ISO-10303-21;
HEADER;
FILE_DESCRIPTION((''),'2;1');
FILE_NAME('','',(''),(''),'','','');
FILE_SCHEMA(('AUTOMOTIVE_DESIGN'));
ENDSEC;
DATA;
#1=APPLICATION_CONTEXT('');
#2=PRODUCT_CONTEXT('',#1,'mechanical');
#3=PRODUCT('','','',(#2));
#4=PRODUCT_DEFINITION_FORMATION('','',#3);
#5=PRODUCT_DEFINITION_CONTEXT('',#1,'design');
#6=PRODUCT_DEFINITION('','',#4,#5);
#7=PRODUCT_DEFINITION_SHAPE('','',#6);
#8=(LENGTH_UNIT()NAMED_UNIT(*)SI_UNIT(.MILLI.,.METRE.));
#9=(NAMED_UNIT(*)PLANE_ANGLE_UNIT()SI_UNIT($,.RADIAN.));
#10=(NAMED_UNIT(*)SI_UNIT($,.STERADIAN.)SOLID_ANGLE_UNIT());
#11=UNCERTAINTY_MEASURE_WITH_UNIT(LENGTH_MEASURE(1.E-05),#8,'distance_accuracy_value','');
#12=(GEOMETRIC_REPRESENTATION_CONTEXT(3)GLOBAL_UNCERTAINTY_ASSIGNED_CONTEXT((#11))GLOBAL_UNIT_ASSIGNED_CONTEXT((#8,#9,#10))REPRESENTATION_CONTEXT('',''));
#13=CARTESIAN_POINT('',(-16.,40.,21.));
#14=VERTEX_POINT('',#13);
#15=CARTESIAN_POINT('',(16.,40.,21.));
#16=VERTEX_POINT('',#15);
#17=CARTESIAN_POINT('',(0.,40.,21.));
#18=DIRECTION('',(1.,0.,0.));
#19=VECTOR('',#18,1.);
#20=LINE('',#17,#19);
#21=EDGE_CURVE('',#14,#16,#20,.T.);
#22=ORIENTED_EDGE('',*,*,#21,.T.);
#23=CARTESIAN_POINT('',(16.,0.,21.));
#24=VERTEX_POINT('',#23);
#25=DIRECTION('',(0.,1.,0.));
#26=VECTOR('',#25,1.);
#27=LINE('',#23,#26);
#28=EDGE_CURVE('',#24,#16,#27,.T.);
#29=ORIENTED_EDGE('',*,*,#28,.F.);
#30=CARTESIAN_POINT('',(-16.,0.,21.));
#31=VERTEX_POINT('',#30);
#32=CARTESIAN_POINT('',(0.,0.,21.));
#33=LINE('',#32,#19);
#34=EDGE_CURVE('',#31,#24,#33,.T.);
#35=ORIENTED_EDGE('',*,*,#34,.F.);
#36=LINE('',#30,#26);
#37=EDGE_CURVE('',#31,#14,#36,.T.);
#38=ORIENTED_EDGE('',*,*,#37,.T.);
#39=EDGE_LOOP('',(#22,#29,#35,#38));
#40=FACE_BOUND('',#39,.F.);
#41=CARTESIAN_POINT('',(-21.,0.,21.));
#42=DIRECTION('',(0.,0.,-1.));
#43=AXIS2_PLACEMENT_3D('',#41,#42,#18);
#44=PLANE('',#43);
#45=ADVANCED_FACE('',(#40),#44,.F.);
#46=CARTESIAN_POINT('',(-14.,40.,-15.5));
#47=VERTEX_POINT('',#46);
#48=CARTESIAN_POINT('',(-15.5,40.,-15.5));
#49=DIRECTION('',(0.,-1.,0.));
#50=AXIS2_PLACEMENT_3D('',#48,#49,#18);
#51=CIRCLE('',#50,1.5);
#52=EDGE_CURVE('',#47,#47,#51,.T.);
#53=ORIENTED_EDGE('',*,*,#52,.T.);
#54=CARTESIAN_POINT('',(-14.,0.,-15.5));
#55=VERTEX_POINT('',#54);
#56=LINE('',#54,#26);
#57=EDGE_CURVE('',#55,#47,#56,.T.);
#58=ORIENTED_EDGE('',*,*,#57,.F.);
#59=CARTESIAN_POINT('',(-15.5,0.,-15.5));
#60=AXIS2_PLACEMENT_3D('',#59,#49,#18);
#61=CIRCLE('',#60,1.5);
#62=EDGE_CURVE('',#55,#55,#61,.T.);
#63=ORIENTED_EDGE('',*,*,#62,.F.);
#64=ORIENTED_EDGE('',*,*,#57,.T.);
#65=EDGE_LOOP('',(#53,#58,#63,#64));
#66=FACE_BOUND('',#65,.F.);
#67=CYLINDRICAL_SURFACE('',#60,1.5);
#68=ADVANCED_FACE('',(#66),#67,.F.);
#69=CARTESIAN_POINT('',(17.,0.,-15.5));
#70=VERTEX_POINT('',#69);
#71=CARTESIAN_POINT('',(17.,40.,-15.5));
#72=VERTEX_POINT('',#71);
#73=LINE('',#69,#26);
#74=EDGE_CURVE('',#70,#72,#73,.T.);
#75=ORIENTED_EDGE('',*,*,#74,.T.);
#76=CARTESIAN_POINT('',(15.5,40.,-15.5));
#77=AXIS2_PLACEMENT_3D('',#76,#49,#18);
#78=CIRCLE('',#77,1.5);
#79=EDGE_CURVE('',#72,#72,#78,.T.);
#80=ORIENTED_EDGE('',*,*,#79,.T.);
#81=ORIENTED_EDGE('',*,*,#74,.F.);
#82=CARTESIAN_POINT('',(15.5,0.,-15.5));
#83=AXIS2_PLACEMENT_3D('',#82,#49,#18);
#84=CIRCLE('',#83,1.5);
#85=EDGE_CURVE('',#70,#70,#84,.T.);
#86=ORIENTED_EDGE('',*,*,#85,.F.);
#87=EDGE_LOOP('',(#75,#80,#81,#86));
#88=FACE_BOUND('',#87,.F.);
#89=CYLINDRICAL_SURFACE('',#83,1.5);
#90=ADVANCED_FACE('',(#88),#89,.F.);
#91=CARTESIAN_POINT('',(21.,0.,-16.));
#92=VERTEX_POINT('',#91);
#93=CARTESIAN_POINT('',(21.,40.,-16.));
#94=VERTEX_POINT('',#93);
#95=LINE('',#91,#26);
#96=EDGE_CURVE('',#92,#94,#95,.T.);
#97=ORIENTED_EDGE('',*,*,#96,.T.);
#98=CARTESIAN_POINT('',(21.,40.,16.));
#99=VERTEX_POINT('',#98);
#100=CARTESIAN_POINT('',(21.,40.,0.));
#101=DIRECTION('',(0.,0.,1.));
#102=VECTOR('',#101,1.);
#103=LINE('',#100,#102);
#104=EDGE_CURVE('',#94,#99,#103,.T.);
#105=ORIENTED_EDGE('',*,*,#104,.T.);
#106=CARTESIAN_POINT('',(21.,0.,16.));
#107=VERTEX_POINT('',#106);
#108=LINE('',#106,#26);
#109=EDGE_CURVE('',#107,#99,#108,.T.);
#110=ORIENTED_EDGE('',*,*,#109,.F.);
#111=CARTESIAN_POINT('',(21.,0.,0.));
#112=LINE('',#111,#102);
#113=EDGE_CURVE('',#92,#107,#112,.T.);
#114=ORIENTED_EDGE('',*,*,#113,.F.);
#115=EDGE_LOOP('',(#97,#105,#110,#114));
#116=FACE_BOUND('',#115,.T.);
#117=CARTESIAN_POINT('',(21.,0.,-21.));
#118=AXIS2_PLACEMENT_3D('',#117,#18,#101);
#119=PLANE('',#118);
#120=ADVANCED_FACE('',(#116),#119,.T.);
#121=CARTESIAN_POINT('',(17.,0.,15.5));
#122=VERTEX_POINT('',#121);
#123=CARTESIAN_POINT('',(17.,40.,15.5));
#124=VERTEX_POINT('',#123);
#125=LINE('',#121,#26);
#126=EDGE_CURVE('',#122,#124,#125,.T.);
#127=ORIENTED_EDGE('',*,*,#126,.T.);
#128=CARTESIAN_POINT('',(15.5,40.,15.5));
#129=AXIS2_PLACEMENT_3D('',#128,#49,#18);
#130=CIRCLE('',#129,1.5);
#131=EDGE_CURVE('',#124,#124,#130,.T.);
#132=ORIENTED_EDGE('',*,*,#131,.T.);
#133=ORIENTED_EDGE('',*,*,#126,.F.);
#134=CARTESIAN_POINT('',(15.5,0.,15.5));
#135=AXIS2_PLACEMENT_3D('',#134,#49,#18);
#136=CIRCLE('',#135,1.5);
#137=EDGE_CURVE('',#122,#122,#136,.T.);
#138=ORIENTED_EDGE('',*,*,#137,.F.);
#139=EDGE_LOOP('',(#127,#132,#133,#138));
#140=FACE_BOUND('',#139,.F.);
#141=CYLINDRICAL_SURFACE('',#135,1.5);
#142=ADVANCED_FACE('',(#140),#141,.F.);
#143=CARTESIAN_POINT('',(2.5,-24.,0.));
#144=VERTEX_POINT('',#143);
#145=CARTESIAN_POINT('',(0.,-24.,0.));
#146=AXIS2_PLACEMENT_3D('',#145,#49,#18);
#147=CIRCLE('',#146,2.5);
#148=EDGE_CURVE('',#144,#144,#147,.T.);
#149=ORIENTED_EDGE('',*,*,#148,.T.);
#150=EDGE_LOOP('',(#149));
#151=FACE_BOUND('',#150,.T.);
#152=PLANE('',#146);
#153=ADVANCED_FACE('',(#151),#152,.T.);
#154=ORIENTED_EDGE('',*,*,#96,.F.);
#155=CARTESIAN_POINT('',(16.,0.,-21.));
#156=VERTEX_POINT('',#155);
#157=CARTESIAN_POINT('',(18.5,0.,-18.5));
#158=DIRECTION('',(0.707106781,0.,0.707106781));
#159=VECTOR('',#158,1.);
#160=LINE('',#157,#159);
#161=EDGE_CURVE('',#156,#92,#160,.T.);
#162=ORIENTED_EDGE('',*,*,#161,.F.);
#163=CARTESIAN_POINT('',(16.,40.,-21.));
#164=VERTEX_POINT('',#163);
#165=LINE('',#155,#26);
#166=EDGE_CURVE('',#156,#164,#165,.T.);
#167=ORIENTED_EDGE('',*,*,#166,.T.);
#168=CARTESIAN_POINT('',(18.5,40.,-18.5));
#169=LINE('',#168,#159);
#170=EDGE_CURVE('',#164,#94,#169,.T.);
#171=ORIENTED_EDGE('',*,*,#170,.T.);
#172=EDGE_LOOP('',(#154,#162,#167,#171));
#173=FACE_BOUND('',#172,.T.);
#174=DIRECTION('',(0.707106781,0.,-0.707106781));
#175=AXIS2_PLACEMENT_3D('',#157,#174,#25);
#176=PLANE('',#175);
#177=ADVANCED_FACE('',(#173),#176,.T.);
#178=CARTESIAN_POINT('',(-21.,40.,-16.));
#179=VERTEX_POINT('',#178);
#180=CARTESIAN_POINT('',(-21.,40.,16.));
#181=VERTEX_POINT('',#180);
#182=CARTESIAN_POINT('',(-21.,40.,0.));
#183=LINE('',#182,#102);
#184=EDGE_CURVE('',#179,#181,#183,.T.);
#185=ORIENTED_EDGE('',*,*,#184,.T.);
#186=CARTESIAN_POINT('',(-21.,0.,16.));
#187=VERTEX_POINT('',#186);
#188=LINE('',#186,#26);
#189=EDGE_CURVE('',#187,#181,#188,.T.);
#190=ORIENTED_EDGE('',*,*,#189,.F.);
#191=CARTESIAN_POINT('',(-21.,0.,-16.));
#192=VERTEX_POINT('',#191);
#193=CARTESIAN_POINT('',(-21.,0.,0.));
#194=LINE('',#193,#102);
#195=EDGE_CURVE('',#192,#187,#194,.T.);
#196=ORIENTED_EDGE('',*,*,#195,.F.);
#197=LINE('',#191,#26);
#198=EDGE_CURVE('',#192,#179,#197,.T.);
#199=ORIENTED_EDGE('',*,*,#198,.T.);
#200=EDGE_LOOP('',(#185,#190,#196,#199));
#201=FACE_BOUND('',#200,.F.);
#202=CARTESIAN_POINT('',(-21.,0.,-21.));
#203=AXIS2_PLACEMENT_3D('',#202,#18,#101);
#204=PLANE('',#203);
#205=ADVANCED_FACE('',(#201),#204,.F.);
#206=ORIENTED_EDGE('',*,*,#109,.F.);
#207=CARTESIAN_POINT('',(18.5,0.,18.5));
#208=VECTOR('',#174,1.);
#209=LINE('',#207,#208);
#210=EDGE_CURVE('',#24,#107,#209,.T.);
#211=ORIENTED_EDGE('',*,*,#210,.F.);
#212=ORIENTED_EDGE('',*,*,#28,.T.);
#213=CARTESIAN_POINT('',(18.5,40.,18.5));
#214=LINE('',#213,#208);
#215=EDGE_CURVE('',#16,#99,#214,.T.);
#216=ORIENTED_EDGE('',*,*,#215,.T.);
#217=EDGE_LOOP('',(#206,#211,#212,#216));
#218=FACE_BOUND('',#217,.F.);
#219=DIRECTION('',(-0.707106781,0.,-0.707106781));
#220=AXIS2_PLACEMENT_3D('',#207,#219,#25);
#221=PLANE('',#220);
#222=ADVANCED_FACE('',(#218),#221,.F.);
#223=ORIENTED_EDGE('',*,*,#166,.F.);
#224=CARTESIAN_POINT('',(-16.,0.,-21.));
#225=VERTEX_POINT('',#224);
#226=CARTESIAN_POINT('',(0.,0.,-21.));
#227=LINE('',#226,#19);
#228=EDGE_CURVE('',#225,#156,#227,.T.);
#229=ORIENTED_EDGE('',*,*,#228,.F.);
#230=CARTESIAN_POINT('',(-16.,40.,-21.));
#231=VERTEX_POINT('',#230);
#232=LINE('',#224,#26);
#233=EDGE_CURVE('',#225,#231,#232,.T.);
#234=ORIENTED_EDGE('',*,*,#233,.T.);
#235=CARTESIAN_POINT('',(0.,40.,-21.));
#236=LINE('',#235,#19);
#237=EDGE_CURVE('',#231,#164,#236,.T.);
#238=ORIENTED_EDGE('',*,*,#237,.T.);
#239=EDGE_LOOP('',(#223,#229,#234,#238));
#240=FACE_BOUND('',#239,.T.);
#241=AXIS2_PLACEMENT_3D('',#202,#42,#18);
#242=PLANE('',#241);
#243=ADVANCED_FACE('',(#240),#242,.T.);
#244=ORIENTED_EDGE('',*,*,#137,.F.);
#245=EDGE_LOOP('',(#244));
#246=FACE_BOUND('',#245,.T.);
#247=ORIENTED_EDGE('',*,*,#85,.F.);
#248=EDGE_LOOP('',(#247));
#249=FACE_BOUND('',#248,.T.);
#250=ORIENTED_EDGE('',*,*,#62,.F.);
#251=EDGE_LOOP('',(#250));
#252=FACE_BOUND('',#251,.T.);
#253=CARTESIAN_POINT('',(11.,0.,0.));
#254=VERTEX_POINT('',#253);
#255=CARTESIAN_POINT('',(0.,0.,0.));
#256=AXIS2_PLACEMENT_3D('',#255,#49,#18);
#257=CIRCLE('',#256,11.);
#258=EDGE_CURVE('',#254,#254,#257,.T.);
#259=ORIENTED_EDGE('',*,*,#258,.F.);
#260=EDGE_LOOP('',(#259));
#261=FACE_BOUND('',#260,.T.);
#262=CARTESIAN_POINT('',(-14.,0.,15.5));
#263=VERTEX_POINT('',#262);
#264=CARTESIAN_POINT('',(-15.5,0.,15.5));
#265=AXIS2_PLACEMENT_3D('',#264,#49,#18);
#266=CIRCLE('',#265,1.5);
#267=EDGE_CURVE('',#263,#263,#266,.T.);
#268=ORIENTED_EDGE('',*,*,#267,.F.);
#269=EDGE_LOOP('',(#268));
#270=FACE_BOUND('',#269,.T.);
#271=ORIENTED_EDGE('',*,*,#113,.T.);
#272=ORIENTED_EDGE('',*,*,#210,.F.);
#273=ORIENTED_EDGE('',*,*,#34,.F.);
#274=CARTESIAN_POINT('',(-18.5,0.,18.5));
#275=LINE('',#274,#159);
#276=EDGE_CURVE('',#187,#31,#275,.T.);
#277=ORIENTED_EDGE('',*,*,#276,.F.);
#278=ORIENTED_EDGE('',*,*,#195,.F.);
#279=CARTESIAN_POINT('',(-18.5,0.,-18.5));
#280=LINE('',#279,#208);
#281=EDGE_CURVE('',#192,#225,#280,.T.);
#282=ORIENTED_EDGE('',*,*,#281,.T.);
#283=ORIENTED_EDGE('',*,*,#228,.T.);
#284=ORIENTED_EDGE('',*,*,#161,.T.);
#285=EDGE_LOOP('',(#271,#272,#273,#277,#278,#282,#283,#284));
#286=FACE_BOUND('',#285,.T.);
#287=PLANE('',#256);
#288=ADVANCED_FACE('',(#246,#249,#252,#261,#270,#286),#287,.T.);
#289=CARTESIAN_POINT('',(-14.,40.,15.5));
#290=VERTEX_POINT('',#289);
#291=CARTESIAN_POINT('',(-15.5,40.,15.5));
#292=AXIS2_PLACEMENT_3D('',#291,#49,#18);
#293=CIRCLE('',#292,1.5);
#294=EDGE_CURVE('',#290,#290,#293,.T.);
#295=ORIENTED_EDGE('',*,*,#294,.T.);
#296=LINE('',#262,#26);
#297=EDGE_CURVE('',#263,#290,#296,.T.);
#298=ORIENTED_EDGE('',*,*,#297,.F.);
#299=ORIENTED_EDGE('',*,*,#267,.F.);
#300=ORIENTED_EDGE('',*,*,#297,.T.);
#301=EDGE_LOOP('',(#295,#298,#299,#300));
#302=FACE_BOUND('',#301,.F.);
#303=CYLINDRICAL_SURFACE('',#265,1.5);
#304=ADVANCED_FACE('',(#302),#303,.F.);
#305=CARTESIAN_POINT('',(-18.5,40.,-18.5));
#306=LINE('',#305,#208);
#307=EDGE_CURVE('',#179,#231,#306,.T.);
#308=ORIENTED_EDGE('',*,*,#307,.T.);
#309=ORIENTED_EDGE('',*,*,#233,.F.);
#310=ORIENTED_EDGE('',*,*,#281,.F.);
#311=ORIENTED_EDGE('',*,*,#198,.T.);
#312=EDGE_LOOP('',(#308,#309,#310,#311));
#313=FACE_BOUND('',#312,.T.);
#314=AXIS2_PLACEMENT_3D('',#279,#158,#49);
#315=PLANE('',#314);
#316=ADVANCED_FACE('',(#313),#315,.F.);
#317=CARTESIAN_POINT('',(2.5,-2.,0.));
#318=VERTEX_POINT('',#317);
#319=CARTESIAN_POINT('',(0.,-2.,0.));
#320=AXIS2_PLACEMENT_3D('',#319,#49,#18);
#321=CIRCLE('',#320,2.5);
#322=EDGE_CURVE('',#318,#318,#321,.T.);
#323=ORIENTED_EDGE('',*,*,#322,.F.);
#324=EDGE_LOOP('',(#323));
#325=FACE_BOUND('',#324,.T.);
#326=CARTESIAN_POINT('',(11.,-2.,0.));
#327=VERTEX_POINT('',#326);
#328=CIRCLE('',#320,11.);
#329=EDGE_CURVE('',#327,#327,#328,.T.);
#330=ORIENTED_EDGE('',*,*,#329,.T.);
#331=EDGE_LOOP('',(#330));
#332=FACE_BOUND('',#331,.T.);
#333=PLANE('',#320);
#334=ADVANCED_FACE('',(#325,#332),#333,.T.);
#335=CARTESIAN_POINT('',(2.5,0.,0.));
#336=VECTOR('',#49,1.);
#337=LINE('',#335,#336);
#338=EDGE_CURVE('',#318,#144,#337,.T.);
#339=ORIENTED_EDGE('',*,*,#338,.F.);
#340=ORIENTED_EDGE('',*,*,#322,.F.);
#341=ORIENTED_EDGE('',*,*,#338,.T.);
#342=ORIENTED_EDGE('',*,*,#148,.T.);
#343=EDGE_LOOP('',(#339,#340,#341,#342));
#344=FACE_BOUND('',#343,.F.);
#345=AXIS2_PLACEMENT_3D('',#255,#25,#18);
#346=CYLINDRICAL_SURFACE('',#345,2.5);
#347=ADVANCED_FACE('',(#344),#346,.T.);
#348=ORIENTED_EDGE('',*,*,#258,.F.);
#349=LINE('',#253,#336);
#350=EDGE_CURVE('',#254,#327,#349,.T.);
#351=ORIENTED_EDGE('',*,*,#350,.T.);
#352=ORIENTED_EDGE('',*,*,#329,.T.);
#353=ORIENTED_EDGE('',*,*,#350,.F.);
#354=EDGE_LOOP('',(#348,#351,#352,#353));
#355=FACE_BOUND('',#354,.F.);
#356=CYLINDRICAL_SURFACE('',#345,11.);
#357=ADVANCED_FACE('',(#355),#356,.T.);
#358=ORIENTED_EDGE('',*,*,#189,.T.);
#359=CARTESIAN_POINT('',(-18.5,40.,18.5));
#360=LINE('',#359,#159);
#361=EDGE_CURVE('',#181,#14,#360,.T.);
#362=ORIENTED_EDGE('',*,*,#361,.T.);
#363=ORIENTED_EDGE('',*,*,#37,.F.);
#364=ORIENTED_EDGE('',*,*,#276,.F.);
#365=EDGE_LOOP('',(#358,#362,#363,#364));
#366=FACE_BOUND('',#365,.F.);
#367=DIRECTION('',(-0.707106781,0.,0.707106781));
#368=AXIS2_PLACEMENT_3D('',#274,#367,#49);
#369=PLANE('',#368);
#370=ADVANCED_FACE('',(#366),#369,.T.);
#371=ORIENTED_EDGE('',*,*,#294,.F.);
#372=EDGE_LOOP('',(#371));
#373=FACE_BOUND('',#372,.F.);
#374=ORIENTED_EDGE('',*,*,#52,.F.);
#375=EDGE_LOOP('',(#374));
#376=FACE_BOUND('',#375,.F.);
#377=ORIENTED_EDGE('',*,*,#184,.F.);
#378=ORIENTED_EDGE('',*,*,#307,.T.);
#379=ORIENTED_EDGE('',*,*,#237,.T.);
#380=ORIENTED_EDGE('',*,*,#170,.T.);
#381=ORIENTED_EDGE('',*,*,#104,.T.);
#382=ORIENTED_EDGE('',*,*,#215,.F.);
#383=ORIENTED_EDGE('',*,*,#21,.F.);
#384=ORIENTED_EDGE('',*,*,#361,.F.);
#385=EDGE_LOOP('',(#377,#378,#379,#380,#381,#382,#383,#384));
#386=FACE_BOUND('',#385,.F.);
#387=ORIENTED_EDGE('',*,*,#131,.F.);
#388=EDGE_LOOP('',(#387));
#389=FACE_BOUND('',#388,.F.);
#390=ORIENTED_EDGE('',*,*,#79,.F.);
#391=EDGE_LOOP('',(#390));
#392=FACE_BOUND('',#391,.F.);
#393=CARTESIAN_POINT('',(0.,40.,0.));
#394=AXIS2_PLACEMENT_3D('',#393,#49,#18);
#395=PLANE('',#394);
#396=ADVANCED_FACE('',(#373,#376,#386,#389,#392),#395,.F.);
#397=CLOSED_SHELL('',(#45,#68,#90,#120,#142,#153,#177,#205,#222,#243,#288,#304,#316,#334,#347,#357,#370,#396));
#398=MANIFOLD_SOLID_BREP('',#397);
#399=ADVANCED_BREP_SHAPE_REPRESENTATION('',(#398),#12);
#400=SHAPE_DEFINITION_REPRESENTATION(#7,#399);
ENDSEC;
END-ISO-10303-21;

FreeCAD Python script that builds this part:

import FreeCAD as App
import Part
import Sketcher

V = App.Vector
Q = App.Units.Quantity


def edges_at(feature, points):
    """Names of the edges that pass closest to the given points."""
    edges = feature.Shape.Edges
    near = lambda p: min(range(len(edges)), key=lambda i: edges[i].distToShape(Part.Vertex(*p))[0])
    return sorted({f"Edge{near(p) + 1}" for p in points})

doc = App.newDocument("Part")
params = doc.addObject("Spreadsheet::Sheet", "Params")
for row, (alias, value) in enumerate([
    ("sketch1_diameter", "3 mm"),
    ("sketch1_width", "42 mm"),
    ("pad1_length", "40 mm"),
    ("sketch2_diameter", "22 mm"),
    ("sketch2_diameter2", "5 mm"),
    ("pad2_length", "2 mm"),
    ("sketch3_diameter", "5 mm"),
    ("pad3_length", "24 mm"),
    ("chamfer_size", "5 mm"),
], start=1):
    params.set(f"A{row}", alias)
    params.set(f"B{row}", "=" + value)
    params.setAlias(f"B{row}", alias)

body = doc.addObject("PartDesign::Body", "Body")

sketch1 = body.newObject("Sketcher::SketchObject", "Sketch")
sketch1.AttachmentSupport = (doc.getObject("XZ_Plane"), [""])
sketch1.MapMode = "FlatFace"
sketch1.addGeometry([
    Part.LineSegment(V(-21, 21, 0), V(-21, -21, 0)),
    Part.LineSegment(V(-21, -21, 0), V(21, -21, 0)),
    Part.LineSegment(V(21, -21, 0), V(21, 21, 0)),
    Part.LineSegment(V(21, 21, 0), V(-21, 21, 0)),
    Part.Circle(V(-15.5, -15.5, 0), V(0, 0, 1), 1.5),
    Part.Circle(V(15.5, -15.5, 0), V(0, 0, 1), 1.5),
    Part.Circle(V(-15.5, 15.5, 0), V(0, 0, 1), 1.5),
    Part.Circle(V(15.5, 15.5, 0), V(0, 0, 1), 1.5),
], False)
sketch1.addConstraint([
    Sketcher.Constraint("Coincident", 0, 2, 1, 1),
    Sketcher.Constraint("Coincident", 1, 2, 2, 1),
    Sketcher.Constraint("Coincident", 2, 2, 3, 1),
    Sketcher.Constraint("Coincident", 3, 2, 0, 1),
    Sketcher.Constraint("Vertical", 0),
    Sketcher.Constraint("Horizontal", 1),
    Sketcher.Constraint("Vertical", 2),
    Sketcher.Constraint("Horizontal", 3),
    Sketcher.Constraint("Equal", 4, 5),
    Sketcher.Constraint("Equal", 5, 6),
    Sketcher.Constraint("Equal", 6, 7),
    Sketcher.Constraint("Symmetric", 5, 3, 6, 3, -1, 1),
    Sketcher.Constraint("Symmetric", 4, 3, 7, 3, -1, 1),
    Sketcher.Constraint("Symmetric", 0, 2, 2, 2, -1, 1),
    Sketcher.Constraint("Symmetric", 4, 3, 5, 3, -2),
    Sketcher.Constraint("Equal", 3, 0),
    Sketcher.Constraint("Diameter", 4, Q("3 mm")),
    Sketcher.Constraint("DistanceX", 1, 1, 1, 2, Q("42 mm")),
    Sketcher.Constraint("DistanceX", 4, 3, 5, 3, Q("31 mm")),
    Sketcher.Constraint("DistanceY", 4, 3, 6, 3, Q("31 mm")),
])
sketch1.setExpression("Constraints[16]", "Params.sketch1_diameter")
sketch1.setExpression("Constraints[17]", "Params.sketch1_width")
pad1 = body.newObject("PartDesign::Pad", "Pad")
pad1.Profile = sketch1
pad1.setExpression("Length", "Params.pad1_length")
pad1.Reversed = True

sketch2 = body.newObject("Sketcher::SketchObject", "Sketch001")
sketch2.AttachmentSupport = (doc.getObject("XZ_Plane"), [""])
sketch2.MapMode = "FlatFace"
sketch2.addGeometry([
    Part.Circle(V(0, 0, 0), V(0, 0, 1), 11),
    Part.Circle(V(0, 0, 0), V(0, 0, 1), 2.5),
], False)
sketch2.addConstraint([
    Sketcher.Constraint("Coincident", 0, 3, -1, 1),
    Sketcher.Constraint("Coincident", 1, 3, -1, 1),
    Sketcher.Constraint("Diameter", 0, Q("22 mm")),
    Sketcher.Constraint("Diameter", 1, Q("5 mm")),
])
sketch2.setExpression("Constraints[2]", "Params.sketch2_diameter")
sketch2.setExpression("Constraints[3]", "Params.sketch2_diameter2")
pad2 = body.newObject("PartDesign::Pad", "Pad001")
pad2.Profile = sketch2
pad2.setExpression("Length", "Params.pad2_length")

sketch3 = body.newObject("Sketcher::SketchObject", "Sketch002")
sketch3.AttachmentSupport = (doc.getObject("XZ_Plane"), [""])
sketch3.MapMode = "FlatFace"
sketch3.addGeometry(Part.Circle(V(0, 0, 0), V(0, 0, 1), 2.5), False)
sketch3.addConstraint([
    Sketcher.Constraint("Coincident", 0, 3, -1, 1),
    Sketcher.Constraint("Diameter", 0, Q("5 mm")),
])
sketch3.setExpression("Constraints[1]", "Params.sketch3_diameter")
pad3 = body.newObject("PartDesign::Pad", "Pad002")
pad3.Profile = sketch3
pad3.setExpression("Length", "Params.pad3_length")
doc.recompute()

chamfer = body.newObject("PartDesign::Chamfer", "Chamfer")
chamfer.Base = (pad3, edges_at(pad3, [
    (-21, 20, -21),
    (-21, 20, 21),
    (21, 20, 21),
    (21, 20, -21),
]))
chamfer.setExpression("Size", "Params.chamfer_size")

doc.recompute()
